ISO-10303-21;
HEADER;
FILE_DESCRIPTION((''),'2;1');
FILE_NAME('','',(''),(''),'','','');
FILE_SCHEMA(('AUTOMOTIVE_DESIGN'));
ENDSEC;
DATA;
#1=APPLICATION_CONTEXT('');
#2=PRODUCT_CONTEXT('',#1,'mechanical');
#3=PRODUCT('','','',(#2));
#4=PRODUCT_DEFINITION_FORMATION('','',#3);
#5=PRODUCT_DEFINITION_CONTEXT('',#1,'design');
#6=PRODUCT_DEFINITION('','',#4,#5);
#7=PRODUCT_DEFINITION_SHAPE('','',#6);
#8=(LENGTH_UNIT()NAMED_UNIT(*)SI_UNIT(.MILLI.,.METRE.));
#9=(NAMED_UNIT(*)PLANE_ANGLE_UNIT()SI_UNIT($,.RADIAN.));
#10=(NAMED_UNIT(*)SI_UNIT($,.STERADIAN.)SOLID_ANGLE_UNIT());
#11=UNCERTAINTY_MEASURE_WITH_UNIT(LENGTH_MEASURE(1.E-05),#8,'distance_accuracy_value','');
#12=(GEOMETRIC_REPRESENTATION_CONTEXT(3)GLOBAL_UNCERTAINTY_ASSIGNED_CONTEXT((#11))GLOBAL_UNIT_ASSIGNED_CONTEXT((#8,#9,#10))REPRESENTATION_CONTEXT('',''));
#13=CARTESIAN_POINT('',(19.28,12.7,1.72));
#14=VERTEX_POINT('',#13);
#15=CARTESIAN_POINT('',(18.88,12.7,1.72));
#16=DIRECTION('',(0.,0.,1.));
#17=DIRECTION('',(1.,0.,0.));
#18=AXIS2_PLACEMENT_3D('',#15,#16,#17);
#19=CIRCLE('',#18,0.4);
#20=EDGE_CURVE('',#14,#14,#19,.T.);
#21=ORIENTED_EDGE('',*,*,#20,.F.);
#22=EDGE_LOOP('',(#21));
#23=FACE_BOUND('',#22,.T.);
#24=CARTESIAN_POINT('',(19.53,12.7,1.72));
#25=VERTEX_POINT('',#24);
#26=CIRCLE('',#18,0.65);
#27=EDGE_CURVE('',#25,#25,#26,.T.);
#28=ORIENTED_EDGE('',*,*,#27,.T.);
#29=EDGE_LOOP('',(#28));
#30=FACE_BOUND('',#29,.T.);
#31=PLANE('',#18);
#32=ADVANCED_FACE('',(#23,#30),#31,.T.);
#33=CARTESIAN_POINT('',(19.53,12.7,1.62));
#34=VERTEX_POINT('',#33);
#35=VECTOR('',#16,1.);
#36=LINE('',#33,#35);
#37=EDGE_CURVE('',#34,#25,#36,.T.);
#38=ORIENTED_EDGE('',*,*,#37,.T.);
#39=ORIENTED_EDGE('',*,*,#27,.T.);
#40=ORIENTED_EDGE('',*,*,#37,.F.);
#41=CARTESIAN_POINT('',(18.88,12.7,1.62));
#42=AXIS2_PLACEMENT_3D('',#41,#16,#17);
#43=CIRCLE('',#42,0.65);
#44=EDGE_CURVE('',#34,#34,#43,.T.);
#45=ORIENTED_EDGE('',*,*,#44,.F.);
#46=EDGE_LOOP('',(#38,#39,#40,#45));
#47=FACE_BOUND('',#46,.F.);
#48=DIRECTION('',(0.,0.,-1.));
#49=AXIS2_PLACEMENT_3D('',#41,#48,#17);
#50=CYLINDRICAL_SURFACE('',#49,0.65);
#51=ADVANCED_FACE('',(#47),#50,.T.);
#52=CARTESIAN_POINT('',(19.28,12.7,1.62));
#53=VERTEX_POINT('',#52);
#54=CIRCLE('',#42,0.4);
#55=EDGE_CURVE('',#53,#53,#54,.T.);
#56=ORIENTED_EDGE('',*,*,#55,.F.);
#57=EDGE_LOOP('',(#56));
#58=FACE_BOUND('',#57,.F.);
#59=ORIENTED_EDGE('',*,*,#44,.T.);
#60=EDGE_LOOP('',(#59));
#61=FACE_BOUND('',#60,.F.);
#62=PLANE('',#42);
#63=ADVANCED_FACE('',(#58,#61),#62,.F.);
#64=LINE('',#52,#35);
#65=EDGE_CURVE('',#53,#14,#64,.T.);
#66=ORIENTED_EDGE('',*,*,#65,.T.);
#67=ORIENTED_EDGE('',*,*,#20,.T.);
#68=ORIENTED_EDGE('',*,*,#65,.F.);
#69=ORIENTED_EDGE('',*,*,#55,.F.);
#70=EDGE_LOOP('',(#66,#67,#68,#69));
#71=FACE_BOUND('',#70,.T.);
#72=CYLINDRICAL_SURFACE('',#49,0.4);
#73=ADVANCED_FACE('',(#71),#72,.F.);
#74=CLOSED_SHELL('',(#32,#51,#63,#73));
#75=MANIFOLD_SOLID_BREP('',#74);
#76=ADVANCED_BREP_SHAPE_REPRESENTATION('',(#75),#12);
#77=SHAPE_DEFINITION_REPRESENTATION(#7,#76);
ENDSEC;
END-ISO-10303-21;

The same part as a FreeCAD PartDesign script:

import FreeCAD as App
import Part
import Sketcher
from FreeCAD import Vector
Q = App.Units.Quantity

doc = App.newDocument("Part")
body = doc.addObject("PartDesign::Body", "Body")

# Sketch on XY plane
sketch1 = body.newObject("Sketcher::SketchObject", "Sketch")
sketch1.AttachmentSupport = (doc.getObject("XY_Plane"), [""])
sketch1.MapMode = "FlatFace"
sketch1.AttachmentOffset = App.Placement(Vector(0, 0, 1.62), App.Rotation())
sketch1.addGeometry(Part.Circle(Vector(0, 0, 0), Vector(0, 0, 1), 0.4), False)
sketch1.addConstraint(Sketcher.Constraint("Coincident", 0, 3, -1, 1))
sketch1.addConstraint(Sketcher.Constraint("Diameter", 0, Q("0.8 mm")))
pad1 = body.newObject("PartDesign::Pad", "Pad")
pad1.Profile = sketch1
pad1.Length = 0.1
body2 = doc.addObject("PartDesign::Body", "Body001")

# Sketch on XY plane
sketch2 = body2.newObject("Sketcher::SketchObject", "Sketch001")
sketch2.AttachmentSupport = (doc.getObject("XY_Plane001"), [""])
sketch2.MapMode = "FlatFace"
sketch2.AttachmentOffset = App.Placement(Vector(0, 0, 1.62), App.Rotation())
sketch2.addGeometry(Part.Circle(Vector(0, 0, 0), Vector(0, 0, 1), 0.7), False)
sketch2.addConstraint(Sketcher.Constraint("Coincident", 0, 3, -1, 1))
sketch2.addConstraint(Sketcher.Constraint("Diameter", 0, Q("1.3 mm")))
pad2 = body2.newObject("PartDesign::Pad", "Pad001")
pad2.Profile = sketch2
pad2.Length = 0.1
doc.recompute()

boolean = body2.newObject("PartDesign::Boolean", "Boolean")
boolean.Type = "Cut"
boolean.addObjects([body])
body3 = doc.addObject("PartDesign::Body", "Body002")
doc.recompute()

body2.Placement = App.Placement(Vector(18.88, 12.7, 0), App.Rotation(Vector(0, 0, 1), 0))
boolean2 = body3.newObject("PartDesign::Boolean", "Boolean001")
boolean2.Type = "Fuse"
boolean2.addObjects([body2])

doc.recompute()
